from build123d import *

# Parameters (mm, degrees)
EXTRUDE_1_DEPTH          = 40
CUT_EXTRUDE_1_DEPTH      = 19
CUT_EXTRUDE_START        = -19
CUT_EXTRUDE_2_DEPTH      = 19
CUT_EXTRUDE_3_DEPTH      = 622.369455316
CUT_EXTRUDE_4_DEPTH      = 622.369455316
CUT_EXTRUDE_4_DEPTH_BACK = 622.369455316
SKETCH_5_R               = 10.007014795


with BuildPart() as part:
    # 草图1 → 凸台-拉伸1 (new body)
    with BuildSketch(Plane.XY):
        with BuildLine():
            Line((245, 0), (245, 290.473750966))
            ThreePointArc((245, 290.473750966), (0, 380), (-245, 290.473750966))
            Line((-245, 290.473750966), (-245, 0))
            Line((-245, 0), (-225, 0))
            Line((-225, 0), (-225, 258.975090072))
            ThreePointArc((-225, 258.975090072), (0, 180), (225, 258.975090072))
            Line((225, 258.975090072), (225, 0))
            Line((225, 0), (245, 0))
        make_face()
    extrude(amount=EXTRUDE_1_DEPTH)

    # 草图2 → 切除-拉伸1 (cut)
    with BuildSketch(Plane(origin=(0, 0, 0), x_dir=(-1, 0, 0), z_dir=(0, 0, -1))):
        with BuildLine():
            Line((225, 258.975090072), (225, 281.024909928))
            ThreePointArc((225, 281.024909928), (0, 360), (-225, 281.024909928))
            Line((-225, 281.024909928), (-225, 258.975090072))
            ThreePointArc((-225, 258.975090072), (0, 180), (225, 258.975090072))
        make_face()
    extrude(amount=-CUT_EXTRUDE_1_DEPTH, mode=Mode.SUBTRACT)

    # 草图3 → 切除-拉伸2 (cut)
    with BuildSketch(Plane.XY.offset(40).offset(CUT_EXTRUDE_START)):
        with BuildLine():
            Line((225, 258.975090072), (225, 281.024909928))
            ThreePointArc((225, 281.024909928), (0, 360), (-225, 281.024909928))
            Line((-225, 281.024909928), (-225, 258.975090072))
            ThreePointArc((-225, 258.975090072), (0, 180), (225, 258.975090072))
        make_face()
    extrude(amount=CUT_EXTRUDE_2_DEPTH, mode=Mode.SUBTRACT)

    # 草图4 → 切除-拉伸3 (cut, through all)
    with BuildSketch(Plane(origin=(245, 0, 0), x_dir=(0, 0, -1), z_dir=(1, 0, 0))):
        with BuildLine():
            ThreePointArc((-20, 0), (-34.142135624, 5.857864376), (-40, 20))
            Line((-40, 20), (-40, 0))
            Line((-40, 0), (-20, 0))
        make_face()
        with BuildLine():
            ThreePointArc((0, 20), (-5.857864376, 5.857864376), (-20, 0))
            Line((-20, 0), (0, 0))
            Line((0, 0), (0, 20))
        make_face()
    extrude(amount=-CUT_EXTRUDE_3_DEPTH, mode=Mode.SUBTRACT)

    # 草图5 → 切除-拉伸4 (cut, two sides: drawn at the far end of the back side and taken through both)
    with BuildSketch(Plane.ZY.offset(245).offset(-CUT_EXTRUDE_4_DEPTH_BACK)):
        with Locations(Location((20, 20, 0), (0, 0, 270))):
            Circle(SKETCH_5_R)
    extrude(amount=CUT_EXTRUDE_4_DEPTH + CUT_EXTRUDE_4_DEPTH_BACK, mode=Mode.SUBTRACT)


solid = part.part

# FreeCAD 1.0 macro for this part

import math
import FreeCAD as App
import Part
import Sketcher

V = App.Vector
Q = App.Units.Quantity

doc = App.newDocument("Part")
params = doc.addObject("Spreadsheet::Sheet", "Params")
for row, (alias, value) in enumerate([
    ("sketch1_radius", "380 mm"),
    ("sketch1_radius2", "360 mm"),
    ("sketch1_width", "20 mm"),
    ("pad1_length", "40 mm"),
    ("sketch2_radius", "360 mm"),
    ("pocket1_length", "19 mm"),
    ("sketch3_radius", "360 mm"),
    ("pocket2_length", "19 mm"),
    ("sketch4_radius", "20 mm"),
], start=1):
    params.set(f"A{row}", alias)
    params.set(f"B{row}", "=" + value)
    params.setAlias(f"B{row}", alias)

body = doc.addObject("PartDesign::Body", "Body")

sketch1 = body.newObject("Sketcher::SketchObject", "Sketch")
sketch1.AttachmentSupport = (doc.getObject("XY_Plane"), [""])
sketch1.MapMode = "FlatFace"
sketch1.addGeometry([
    Part.LineSegment(V(245, 0, 0), V(245, 290, 0)),
    Part.ArcOfCircle(Part.Circle(V(0, 0, 0), V(0, 0, 1), 380), math.radians(50), math.radians(130)),
    Part.LineSegment(V(-245, 290, 0), V(-245, 0, 0)),
    Part.LineSegment(V(-245, 0, 0), V(-225, 0, 0)),
    Part.LineSegment(V(-225, 0, 0), V(-225, 259, 0)),
    Part.ArcOfCircle(Part.Circle(V(0, 540, 0), V(0, 0, 1), 360), math.radians(-129), math.radians(-51)),
    Part.LineSegment(V(225, 259, 0), V(225, 0, 0)),
    Part.LineSegment(V(225, 0, 0), V(245, 0, 0)),
], False)
sketch1.addConstraint([
    Sketcher.Constraint("Coincident", 0, 2, 1, 1),
    Sketcher.Constraint("Coincident", 1, 2, 2, 1),
    Sketcher.Constraint("Coincident", 2, 2, 3, 1),
    Sketcher.Constraint("Coincident", 3, 2, 4, 1),
    Sketcher.Constraint("Coincident", 4, 2, 5, 1),
    Sketcher.Constraint("Coincident", 5, 2, 6, 1),
    Sketcher.Constraint("Coincident", 6, 2, 7, 1),
    Sketcher.Constraint("Coincident", 7, 2, 0, 1),
    Sketcher.Constraint("Vertical", 0),
    Sketcher.Constraint("Vertical", 2),
    Sketcher.Constraint("Horizontal", 3),
    Sketcher.Constraint("Vertical", 4),
    Sketcher.Constraint("Vertical", 6),
    Sketcher.Constraint("Horizontal", 7),
    Sketcher.Constraint("Coincident", 1, 3, -1, 1),
    Sketcher.Constraint("Symmetric", 3, 2, 6, 2, -1, 1),
    Sketcher.Constraint("Symmetric", 2, 2, 7, 2, -2),
    Sketcher.Constraint("PointOnObject", 5, 3, -2),
    Sketcher.Constraint("Radius", 1, Q("380 mm")),
    Sketcher.Constraint("Radius", 5, Q("360 mm")),
    Sketcher.Constraint("DistanceX", 3, 1, 3, 2, Q("20 mm")),
    Sketcher.Constraint("DistanceY", -1, 1, 5, 3, Q("540 mm")),
    Sketcher.Constraint("DistanceX", -1, 1, 0, 2, Q("245 mm")),
])
sketch1.setExpression("Constraints[18]", "Params.sketch1_radius")
sketch1.setExpression("Constraints[19]", "Params.sketch1_radius2")
sketch1.setExpression("Constraints[20]", "Params.sketch1_width")
pad1 = body.newObject("PartDesign::Pad", "Pad")
pad1.Profile = sketch1
pad1.setExpression("Length", "Params.pad1_length")

sketch2 = body.newObject("Sketcher::SketchObject", "Sketch001")
sketch2.AttachmentSupport = (doc.getObject("XY_Plane"), [""])
sketch2.MapMode = "FlatFace"
sketch2.addGeometry([
    Part.LineSegment(V(-225, 259, 0), V(-225, 281, 0)),
    Part.ArcOfCircle(Part.Circle(V(0, 0, 0), V(0, 0, 1), 360), math.radians(51), math.radians(129)),
    Part.LineSegment(V(225, 281, 0), V(225, 259, 0)),
    Part.ArcOfCircle(Part.Circle(V(0, 540, 0), V(0, 0, 1), 360), math.radians(-129), math.radians(-51)),
], False)
sketch2.addConstraint([
    Sketcher.Constraint("Coincident", 0, 2, 1, 2),
    Sketcher.Constraint("Coincident", 1, 1, 2, 1),
    Sketcher.Constraint("Coincident", 2, 2, 3, 2),
    Sketcher.Constraint("Coincident", 3, 1, 0, 1),
    Sketcher.Constraint("Vertical", 0),
    Sketcher.Constraint("Vertical", 2),
    Sketcher.Constraint("Coincident", 1, 3, -1, 1),
    Sketcher.Constraint("Equal", 1, 3),
    Sketcher.Constraint("Symmetric", 2, 2, 3, 1, -2),
    Sketcher.Constraint("Radius", 1, Q("360 mm")),
    Sketcher.Constraint("DistanceY", -1, 1, 3, 3, Q("540 mm")),
    Sketcher.Constraint("DistanceX", 0, 2, -1, 1, Q("225 mm")),
])
sketch2.setExpression("Constraints[9]", "Params.sketch2_radius")
pocket1 = body.newObject("PartDesign::Pocket", "Pocket")
pocket1.Profile = sketch2
pocket1.setExpression("Length", "Params.pocket1_length")
pocket1.Reversed = True

sketch3 = body.newObject("Sketcher::SketchObject", "Sketch002")
sketch3.AttachmentSupport = (doc.getObject("XY_Plane"), [""])
sketch3.MapMode = "FlatFace"
sketch3.AttachmentOffset = App.Placement(V(0, 0, 21), App.Rotation())
sketch3.addGeometry([
    Part.LineSegment(V(225, 259, 0), V(225, 281, 0)),
    Part.ArcOfCircle(Part.Circle(V(0, 0, 0), V(0, 0, 1), 360), math.radians(51), math.radians(129)),
    Part.LineSegment(V(-225, 281, 0), V(-225, 259, 0)),
    Part.ArcOfCircle(Part.Circle(V(0, 540, 0), V(0, 0, 1), 360), math.radians(-129), math.radians(-51)),
], False)
sketch3.addConstraint([
    Sketcher.Constraint("Coincident", 0, 2, 1, 1),
    Sketcher.Constraint("Coincident", 1, 2, 2, 1),
    Sketcher.Constraint("Coincident", 2, 2, 3, 1),
    Sketcher.Constraint("Coincident", 3, 2, 0, 1),
    Sketcher.Constraint("Vertical", 0),
    Sketcher.Constraint("Vertical", 2),
    Sketcher.Constraint("Coincident", 1, 3, -1, 1),
    Sketcher.Constraint("Equal", 1, 3),
    Sketcher.Constraint("Symmetric", 2, 2, 3, 2, -2),
    Sketcher.Constraint("Radius", 1, Q("360 mm")),
    Sketcher.Constraint("DistanceY", -1, 1, 3, 3, Q("540 mm")),
    Sketcher.Constraint("DistanceX", -1, 1, 0, 2, Q("225 mm")),
])
sketch3.setExpression("Constraints[9]", "Params.sketch3_radius")
pocket2 = body.newObject("PartDesign::Pocket", "Pocket001")
pocket2.Profile = sketch3
pocket2.setExpression("Length", "Params.pocket2_length")
pocket2.Reversed = True

sketch4 = body.newObject("Sketcher::SketchObject", "Sketch003")
sketch4.AttachmentSupport = (doc.getObject("YZ_Plane"), [""])
sketch4.MapMode = "FlatFace"
sketch4.AttachmentOffset = App.Placement(V(0, 0, 245), App.Rotation())
sketch4.addGeometry([
    Part.ArcOfCircle(Part.Circle(V(20, 20, 0), V(0, 0, 1), 20), math.radians(90), math.radians(180)),
    Part.LineSegment(V(20, 40, 0), V(0, 40, 0)),
    Part.LineSegment(V(0, 40, 0), V(0, 20, 0)),
    Part.ArcOfCircle(Part.Circle(V(20, 20, 0), V(0, 0, 1), 20), math.radians(180), math.radians(270)),
    Part.LineSegment(V(0, 20, 0), V(0, 0, 0)),
    Part.LineSegment(V(0, 0, 0), V(20, 0, 0)),
], False)
sketch4.addConstraint([
    Sketcher.Constraint("Tangent", 0, 1, 1, 1),
    Sketcher.Constraint("Coincident", 1, 2, 2, 1),
    Sketcher.Constraint("Tangent", 2, 2, 0, 2),
    Sketcher.Constraint("Tangent", 3, 1, 4, 1),
    Sketcher.Constraint("Coincident", 4, 2, 5, 1),
    Sketcher.Constraint("Tangent", 5, 2, 3, 2),
    Sketcher.Constraint("Horizontal", 1),
    Sketcher.Constraint("Vertical", 2),
    Sketcher.Constraint("Vertical", 4),
    Sketcher.Constraint("Horizontal", 5),
    Sketcher.Constraint("Coincident", 4, 2, -1, 1),
    Sketcher.Constraint("Coincident", 3, 3, 0, 3),
    Sketcher.Constraint("Equal", 0, 3),
    Sketcher.Constraint("Radius", 0, Q("20 mm")),
])
sketch4.setExpression("Constraints[13]", "Params.sketch4_radius")
pocket3 = body.newObject("PartDesign::Pocket", "Pocket002")
pocket3.Profile = sketch4
pocket3.Type = "ThroughAll"

sketch5 = body.newObject("Sketcher::SketchObject", "Sketch004")
sketch5.AttachmentSupport = (doc.getObject("YZ_Plane"), [""])
sketch5.MapMode = "FlatFace"
sketch5.AttachmentOffset = App.Placement(V(0, 0, -245), App.Rotation())
sketch5.addGeometry(Part.Circle(V(20, 20, 0), V(0, 0, 1), 10), False)
sketch5.addConstraint([
    Sketcher.Constraint("DistanceX", -1, 1, 0, 3, Q("20 mm")),
    Sketcher.Constraint("DistanceY", -1, 1, 0, 3, Q("20 mm")),
    Sketcher.Constraint("Diameter", 0, Q("20.01403 mm")),
])
pocket4 = body.newObject("PartDesign::Pocket", "Pocket003")
pocket4.Profile = sketch5
pocket4.Type = "ThroughAll"
pocket4.Midplane = True

doc.recompute()
